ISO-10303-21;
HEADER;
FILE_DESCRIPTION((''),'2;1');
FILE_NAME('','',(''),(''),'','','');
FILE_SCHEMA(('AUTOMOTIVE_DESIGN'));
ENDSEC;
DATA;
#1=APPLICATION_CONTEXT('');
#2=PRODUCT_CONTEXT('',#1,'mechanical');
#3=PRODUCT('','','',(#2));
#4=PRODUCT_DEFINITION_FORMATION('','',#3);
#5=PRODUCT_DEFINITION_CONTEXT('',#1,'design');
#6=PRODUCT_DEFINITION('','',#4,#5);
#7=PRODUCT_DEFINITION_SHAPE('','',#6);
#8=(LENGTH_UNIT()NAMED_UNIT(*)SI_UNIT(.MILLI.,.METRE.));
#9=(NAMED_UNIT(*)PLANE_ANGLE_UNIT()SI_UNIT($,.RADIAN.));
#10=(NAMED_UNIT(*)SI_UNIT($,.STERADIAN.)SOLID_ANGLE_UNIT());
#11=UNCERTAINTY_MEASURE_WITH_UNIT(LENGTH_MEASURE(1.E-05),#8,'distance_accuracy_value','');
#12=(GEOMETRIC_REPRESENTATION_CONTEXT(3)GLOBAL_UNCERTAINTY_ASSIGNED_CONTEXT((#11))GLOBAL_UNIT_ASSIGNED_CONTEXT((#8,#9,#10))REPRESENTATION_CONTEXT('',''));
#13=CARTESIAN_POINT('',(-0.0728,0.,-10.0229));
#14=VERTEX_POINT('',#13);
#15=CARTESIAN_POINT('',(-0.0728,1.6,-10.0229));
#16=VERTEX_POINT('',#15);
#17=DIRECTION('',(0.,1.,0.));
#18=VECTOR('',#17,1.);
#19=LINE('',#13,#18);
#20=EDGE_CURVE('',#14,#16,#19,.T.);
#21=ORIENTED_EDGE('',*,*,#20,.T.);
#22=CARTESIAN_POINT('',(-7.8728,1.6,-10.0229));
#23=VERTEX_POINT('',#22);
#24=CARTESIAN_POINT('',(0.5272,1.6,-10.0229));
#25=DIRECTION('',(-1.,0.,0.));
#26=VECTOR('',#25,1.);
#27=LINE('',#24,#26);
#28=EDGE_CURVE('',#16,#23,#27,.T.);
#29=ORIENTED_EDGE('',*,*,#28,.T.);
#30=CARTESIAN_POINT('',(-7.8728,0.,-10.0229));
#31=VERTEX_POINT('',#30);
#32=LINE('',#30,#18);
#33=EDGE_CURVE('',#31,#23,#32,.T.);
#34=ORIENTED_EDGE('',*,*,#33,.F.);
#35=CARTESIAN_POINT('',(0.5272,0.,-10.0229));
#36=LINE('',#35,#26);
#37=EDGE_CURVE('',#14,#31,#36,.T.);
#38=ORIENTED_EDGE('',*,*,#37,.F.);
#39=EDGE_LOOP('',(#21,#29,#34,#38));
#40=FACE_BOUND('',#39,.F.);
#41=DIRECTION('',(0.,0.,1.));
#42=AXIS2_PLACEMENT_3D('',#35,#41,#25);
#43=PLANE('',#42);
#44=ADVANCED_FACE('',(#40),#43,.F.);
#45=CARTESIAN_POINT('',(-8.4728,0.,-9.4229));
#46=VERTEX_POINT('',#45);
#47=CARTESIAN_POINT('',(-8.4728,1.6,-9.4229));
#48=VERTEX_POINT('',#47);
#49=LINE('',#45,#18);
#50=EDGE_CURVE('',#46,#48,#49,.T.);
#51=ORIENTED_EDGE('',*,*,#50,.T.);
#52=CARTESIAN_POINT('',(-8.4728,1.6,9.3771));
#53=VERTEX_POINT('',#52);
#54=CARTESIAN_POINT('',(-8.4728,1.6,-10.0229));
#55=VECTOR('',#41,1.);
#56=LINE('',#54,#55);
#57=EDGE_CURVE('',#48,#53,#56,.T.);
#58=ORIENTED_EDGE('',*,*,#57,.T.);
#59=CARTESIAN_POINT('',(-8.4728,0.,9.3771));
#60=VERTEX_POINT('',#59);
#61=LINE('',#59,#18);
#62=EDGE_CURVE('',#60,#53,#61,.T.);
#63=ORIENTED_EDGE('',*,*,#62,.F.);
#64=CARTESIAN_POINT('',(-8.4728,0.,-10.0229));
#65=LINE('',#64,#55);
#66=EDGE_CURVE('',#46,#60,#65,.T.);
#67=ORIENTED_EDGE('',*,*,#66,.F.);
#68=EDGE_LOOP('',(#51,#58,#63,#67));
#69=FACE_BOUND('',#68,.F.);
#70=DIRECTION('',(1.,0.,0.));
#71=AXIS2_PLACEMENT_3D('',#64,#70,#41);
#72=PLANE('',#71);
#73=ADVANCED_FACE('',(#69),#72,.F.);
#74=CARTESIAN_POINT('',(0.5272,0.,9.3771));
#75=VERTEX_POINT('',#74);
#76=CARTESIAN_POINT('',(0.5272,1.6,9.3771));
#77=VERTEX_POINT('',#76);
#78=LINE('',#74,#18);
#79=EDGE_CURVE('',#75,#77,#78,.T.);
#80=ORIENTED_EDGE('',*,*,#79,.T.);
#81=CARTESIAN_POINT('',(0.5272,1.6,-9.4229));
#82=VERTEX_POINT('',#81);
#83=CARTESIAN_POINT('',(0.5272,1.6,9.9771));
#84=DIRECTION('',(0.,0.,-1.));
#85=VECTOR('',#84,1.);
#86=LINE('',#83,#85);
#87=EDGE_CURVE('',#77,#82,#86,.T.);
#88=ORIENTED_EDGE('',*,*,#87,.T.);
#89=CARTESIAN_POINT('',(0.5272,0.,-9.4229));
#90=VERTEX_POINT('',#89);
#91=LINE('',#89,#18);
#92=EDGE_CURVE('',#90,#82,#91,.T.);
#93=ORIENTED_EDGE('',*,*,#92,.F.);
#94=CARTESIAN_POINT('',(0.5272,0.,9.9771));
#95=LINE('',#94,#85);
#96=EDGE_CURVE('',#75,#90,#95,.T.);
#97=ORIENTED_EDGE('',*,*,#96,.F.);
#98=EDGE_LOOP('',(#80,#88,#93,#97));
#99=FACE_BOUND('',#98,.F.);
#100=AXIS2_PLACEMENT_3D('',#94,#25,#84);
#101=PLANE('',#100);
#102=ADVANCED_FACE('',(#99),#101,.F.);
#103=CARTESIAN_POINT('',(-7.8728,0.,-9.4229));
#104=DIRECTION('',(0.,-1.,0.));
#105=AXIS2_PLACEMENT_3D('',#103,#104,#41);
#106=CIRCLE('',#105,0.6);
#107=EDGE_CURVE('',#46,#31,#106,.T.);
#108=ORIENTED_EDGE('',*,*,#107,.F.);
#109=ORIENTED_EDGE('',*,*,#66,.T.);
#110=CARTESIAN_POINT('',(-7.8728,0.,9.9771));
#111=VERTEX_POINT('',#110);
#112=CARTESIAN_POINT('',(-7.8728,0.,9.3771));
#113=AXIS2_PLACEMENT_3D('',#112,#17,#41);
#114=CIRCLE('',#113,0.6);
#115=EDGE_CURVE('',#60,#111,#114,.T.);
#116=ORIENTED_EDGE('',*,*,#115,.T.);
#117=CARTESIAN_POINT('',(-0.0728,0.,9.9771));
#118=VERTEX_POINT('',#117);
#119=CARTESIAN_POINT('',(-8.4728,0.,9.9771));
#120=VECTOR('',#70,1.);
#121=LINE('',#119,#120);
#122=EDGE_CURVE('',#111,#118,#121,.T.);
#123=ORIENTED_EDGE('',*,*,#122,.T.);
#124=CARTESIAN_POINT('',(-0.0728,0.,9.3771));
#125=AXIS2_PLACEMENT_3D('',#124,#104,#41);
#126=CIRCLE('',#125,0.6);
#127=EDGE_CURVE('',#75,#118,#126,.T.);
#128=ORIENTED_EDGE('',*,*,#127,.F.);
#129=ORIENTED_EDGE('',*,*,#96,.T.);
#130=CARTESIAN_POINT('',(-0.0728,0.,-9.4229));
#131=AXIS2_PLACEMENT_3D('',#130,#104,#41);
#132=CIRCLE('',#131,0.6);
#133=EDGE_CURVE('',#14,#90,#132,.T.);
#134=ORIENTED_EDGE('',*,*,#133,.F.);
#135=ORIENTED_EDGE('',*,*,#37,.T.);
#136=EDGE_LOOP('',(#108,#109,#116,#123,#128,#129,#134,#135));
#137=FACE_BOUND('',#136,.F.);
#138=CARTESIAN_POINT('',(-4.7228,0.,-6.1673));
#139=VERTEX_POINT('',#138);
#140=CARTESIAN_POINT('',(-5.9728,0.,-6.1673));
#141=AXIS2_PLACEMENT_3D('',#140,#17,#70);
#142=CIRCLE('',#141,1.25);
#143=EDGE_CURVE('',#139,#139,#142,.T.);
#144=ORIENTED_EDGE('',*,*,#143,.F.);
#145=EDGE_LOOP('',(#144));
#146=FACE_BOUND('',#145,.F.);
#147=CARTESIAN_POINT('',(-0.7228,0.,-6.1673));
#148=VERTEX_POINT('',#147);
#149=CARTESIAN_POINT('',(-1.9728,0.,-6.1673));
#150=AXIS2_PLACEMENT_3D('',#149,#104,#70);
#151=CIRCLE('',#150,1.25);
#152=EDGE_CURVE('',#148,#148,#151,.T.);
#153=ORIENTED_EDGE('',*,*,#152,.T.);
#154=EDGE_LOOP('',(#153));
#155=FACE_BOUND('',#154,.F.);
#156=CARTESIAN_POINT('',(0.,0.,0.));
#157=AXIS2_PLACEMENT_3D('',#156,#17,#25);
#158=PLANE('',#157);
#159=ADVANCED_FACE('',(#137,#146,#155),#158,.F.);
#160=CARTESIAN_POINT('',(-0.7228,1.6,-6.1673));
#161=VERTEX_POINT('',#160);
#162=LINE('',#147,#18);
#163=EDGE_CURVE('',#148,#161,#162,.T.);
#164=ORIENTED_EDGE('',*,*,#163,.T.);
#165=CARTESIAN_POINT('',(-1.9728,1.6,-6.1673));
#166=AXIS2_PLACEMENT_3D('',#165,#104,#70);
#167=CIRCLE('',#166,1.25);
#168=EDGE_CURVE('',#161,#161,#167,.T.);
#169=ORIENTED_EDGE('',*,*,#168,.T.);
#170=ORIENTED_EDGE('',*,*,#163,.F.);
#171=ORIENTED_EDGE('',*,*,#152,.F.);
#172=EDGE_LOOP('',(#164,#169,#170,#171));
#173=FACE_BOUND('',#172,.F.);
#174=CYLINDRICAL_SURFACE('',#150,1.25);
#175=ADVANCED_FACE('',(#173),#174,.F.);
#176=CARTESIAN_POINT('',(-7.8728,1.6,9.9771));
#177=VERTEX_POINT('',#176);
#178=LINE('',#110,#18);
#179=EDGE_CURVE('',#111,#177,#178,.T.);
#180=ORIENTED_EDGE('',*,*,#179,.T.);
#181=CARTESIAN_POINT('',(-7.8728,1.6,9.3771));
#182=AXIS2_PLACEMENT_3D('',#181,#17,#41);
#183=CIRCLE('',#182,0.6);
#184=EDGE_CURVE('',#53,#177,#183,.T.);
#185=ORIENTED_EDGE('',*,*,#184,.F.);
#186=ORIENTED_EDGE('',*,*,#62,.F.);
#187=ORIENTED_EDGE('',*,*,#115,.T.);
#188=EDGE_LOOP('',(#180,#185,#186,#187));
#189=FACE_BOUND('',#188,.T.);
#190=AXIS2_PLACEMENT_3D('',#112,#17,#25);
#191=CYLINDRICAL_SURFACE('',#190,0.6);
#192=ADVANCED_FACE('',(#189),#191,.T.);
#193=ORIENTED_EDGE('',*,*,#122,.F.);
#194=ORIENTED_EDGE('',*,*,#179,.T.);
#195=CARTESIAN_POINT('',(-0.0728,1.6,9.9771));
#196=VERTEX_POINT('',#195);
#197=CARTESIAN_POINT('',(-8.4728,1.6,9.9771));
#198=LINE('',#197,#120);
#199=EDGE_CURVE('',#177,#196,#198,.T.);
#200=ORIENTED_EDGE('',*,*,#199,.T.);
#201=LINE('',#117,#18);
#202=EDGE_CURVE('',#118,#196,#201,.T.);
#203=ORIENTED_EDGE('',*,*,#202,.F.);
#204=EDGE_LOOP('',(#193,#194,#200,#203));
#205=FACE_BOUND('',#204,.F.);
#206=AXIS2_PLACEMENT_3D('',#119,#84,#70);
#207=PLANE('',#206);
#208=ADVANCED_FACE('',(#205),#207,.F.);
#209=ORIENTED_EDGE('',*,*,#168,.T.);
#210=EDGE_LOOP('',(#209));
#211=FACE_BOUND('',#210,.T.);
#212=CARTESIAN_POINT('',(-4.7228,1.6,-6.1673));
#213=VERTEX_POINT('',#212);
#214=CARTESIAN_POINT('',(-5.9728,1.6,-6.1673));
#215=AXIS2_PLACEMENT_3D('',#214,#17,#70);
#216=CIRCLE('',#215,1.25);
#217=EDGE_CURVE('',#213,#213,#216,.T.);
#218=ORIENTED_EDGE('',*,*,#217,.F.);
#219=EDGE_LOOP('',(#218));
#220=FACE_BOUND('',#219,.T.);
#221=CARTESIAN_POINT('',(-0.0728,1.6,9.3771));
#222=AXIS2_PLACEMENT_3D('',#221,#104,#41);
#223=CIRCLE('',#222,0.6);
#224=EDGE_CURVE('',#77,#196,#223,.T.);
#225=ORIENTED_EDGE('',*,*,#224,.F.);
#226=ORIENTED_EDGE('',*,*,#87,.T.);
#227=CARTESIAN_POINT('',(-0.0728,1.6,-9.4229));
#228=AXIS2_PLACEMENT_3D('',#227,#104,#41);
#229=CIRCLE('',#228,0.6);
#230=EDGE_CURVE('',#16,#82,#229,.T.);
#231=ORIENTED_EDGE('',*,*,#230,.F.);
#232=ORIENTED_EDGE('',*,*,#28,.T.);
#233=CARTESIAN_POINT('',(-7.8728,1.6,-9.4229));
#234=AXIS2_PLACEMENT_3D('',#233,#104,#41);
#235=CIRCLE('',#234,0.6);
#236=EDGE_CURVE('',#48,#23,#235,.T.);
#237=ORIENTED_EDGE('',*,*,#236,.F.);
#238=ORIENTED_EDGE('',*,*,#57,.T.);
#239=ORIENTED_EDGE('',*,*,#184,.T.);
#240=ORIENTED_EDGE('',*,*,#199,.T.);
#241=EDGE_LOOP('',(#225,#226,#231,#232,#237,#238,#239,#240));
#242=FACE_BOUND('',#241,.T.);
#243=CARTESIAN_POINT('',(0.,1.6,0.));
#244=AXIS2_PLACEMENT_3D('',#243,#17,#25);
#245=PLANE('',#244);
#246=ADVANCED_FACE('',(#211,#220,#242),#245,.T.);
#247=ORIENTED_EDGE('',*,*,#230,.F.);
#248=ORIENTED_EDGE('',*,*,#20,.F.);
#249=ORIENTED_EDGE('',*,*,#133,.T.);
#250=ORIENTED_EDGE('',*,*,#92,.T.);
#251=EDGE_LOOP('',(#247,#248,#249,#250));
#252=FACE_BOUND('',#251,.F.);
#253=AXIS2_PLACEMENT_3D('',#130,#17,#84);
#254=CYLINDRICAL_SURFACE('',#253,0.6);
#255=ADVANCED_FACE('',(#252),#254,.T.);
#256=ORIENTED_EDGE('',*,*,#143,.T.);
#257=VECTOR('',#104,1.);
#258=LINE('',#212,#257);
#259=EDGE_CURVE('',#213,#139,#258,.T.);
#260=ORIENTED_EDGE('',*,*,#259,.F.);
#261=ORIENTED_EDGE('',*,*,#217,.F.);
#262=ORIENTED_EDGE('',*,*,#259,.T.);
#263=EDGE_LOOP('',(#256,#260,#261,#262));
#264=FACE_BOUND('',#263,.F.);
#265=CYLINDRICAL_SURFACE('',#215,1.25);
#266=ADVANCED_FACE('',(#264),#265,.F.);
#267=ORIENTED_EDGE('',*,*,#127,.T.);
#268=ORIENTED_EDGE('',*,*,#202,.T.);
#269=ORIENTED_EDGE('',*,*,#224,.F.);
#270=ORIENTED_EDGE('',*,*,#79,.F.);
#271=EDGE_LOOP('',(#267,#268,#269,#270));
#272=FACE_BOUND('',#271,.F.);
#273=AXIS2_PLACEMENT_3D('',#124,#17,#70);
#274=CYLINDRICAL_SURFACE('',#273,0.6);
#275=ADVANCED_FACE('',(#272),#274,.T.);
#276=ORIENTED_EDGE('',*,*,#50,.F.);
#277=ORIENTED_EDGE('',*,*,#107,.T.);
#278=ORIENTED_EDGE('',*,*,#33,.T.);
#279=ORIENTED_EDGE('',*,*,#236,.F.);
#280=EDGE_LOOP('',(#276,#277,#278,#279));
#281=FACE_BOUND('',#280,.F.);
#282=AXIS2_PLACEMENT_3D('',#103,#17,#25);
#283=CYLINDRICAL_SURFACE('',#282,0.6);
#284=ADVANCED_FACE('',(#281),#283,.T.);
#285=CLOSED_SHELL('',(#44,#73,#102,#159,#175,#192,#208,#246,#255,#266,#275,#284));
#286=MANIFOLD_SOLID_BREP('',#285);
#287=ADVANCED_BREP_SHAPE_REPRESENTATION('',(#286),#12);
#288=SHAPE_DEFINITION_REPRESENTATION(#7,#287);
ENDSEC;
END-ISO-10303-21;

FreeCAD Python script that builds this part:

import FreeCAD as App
import Part
import Sketcher

V = App.Vector
Q = App.Units.Quantity


def edges_at(feature, points):
    """Names of the edges that pass closest to the given points."""
    edges = feature.Shape.Edges
    near = lambda p: min(range(len(edges)), key=lambda i: edges[i].distToShape(Part.Vertex(*p))[0])
    return sorted({f"Edge{near(p) + 1}" for p in points})

doc = App.newDocument("Part")
body = doc.addObject("PartDesign::Body", "Body")

# Sketch on XZ plane
sketch1 = doc.addObject("Sketcher::SketchObject", "Sketch")
body.addObject(sketch1)
sketch1.AttachmentSupport = (doc.XZ_Plane, [""])
sketch1.MapMode = "FlatFace"
sketch1.addGeometry(Part.LineSegment(V(-8.4728, -10.0229, 0), V(-8.4728, 9.9771, 0)), False)
sketch1.addGeometry(Part.LineSegment(V(-8.4728, 9.9771, 0), V(0.5272, 9.9771, 0)), False)
sketch1.addGeometry(Part.LineSegment(V(0.5272, 9.9771, 0), V(0.5272, -10.0229, 0)), False)
sketch1.addGeometry(Part.LineSegment(V(0.5272, -10.0229, 0), V(-8.4728, -10.0229, 0)), False)
sketch1.addConstraint(Sketcher.Constraint("Coincident", 0, 2, 1, 1))
sketch1.addConstraint(Sketcher.Constraint("Coincident", 1, 2, 2, 1))
sketch1.addConstraint(Sketcher.Constraint("Coincident", 2, 2, 3, 1))
sketch1.addConstraint(Sketcher.Constraint("Coincident", 3, 2, 0, 1))
sketch1.addConstraint(Sketcher.Constraint("Vertical", 0))
sketch1.addConstraint(Sketcher.Constraint("Horizontal", 1))
sketch1.addConstraint(Sketcher.Constraint("Vertical", 2))
sketch1.addConstraint(Sketcher.Constraint("Horizontal", 3))
sketch1.addConstraint(Sketcher.Constraint("DistanceX", 1, 1, 1, 2, Q("9 mm")))
sketch1.addConstraint(Sketcher.Constraint("DistanceY", 0, 1, 0, 2, Q("20 mm")))
sketch1.addConstraint(Sketcher.Constraint("DistanceY", -1, 1, 0, 2, Q("9.977 mm")))
sketch1.addConstraint(Sketcher.Constraint("DistanceX", 0, 2, -1, 1, Q("8.4728 mm")))
pad1 = doc.addObject("PartDesign::Pad", "Pad")
body.addObject(pad1)
pad1.Profile = sketch1
pad1.Length = 1.6
pad1.Reversed = True
doc.recompute()

fillet = doc.addObject("PartDesign::Fillet", "Fillet")
body.addObject(fillet)
fillet.Base = (pad1, edges_at(pad1, [
    (-8.473, 0.8, -10.023),
    (0.527, 0.8, -10.023),
    (0.527, 0.8, 9.977),
    (-8.473, 0.8, 9.977),
]))
fillet.Radius = 0.6

# Sketch on XZ plane
sketch2 = doc.addObject("Sketcher::SketchObject", "Sketch001")
body.addObject(sketch2)
sketch2.AttachmentSupport = (doc.XZ_Plane, [""])
sketch2.MapMode = "FlatFace"
sketch2.addGeometry(Part.Circle(V(-1.9728, -6.1673, 0), V(0, 0, 1), 1.25), False)
sketch2.addConstraint(Sketcher.Constraint("Diameter", 0, Q("2.5 mm")))
sketch2.addConstraint(Sketcher.Constraint("DistanceX", 0, 3, -1, 1, Q("1.9728 mm")))
sketch2.addConstraint(Sketcher.Constraint("DistanceY", 0, 3, -1, 1, Q("6.1673 mm")))
pocket1 = doc.addObject("PartDesign::Pocket", "Pocket")
body.addObject(pocket1)
pocket1.Profile = sketch2
pocket1.Type = "ThroughAll"

# Sketch on XZ plane
sketch3 = doc.addObject("Sketcher::SketchObject", "Sketch002")
body.addObject(sketch3)
sketch3.AttachmentSupport = (doc.XZ_Plane, [""])
sketch3.MapMode = "FlatFace"
sketch3.AttachmentOffset = App.Placement(V(0, 0, -1.6), App.Rotation())
sketch3.addGeometry(Part.Circle(V(-5.9728, -6.1673, 0), V(0, 0, 1), 1.25), False)
sketch3.addConstraint(Sketcher.Constraint("Diameter", 0, Q("2.5 mm")))
sketch3.addConstraint(Sketcher.Constraint("DistanceX", 0, 3, -1, 1, Q("5.9728 mm")))
sketch3.addConstraint(Sketcher.Constraint("DistanceY", 0, 3, -1, 1, Q("6.1673 mm")))
pocket2 = doc.addObject("PartDesign::Pocket", "Pocket001")
body.addObject(pocket2)
pocket2.Profile = sketch3
pocket2.Length = 10
pocket2.Reversed = True

doc.recompute()
